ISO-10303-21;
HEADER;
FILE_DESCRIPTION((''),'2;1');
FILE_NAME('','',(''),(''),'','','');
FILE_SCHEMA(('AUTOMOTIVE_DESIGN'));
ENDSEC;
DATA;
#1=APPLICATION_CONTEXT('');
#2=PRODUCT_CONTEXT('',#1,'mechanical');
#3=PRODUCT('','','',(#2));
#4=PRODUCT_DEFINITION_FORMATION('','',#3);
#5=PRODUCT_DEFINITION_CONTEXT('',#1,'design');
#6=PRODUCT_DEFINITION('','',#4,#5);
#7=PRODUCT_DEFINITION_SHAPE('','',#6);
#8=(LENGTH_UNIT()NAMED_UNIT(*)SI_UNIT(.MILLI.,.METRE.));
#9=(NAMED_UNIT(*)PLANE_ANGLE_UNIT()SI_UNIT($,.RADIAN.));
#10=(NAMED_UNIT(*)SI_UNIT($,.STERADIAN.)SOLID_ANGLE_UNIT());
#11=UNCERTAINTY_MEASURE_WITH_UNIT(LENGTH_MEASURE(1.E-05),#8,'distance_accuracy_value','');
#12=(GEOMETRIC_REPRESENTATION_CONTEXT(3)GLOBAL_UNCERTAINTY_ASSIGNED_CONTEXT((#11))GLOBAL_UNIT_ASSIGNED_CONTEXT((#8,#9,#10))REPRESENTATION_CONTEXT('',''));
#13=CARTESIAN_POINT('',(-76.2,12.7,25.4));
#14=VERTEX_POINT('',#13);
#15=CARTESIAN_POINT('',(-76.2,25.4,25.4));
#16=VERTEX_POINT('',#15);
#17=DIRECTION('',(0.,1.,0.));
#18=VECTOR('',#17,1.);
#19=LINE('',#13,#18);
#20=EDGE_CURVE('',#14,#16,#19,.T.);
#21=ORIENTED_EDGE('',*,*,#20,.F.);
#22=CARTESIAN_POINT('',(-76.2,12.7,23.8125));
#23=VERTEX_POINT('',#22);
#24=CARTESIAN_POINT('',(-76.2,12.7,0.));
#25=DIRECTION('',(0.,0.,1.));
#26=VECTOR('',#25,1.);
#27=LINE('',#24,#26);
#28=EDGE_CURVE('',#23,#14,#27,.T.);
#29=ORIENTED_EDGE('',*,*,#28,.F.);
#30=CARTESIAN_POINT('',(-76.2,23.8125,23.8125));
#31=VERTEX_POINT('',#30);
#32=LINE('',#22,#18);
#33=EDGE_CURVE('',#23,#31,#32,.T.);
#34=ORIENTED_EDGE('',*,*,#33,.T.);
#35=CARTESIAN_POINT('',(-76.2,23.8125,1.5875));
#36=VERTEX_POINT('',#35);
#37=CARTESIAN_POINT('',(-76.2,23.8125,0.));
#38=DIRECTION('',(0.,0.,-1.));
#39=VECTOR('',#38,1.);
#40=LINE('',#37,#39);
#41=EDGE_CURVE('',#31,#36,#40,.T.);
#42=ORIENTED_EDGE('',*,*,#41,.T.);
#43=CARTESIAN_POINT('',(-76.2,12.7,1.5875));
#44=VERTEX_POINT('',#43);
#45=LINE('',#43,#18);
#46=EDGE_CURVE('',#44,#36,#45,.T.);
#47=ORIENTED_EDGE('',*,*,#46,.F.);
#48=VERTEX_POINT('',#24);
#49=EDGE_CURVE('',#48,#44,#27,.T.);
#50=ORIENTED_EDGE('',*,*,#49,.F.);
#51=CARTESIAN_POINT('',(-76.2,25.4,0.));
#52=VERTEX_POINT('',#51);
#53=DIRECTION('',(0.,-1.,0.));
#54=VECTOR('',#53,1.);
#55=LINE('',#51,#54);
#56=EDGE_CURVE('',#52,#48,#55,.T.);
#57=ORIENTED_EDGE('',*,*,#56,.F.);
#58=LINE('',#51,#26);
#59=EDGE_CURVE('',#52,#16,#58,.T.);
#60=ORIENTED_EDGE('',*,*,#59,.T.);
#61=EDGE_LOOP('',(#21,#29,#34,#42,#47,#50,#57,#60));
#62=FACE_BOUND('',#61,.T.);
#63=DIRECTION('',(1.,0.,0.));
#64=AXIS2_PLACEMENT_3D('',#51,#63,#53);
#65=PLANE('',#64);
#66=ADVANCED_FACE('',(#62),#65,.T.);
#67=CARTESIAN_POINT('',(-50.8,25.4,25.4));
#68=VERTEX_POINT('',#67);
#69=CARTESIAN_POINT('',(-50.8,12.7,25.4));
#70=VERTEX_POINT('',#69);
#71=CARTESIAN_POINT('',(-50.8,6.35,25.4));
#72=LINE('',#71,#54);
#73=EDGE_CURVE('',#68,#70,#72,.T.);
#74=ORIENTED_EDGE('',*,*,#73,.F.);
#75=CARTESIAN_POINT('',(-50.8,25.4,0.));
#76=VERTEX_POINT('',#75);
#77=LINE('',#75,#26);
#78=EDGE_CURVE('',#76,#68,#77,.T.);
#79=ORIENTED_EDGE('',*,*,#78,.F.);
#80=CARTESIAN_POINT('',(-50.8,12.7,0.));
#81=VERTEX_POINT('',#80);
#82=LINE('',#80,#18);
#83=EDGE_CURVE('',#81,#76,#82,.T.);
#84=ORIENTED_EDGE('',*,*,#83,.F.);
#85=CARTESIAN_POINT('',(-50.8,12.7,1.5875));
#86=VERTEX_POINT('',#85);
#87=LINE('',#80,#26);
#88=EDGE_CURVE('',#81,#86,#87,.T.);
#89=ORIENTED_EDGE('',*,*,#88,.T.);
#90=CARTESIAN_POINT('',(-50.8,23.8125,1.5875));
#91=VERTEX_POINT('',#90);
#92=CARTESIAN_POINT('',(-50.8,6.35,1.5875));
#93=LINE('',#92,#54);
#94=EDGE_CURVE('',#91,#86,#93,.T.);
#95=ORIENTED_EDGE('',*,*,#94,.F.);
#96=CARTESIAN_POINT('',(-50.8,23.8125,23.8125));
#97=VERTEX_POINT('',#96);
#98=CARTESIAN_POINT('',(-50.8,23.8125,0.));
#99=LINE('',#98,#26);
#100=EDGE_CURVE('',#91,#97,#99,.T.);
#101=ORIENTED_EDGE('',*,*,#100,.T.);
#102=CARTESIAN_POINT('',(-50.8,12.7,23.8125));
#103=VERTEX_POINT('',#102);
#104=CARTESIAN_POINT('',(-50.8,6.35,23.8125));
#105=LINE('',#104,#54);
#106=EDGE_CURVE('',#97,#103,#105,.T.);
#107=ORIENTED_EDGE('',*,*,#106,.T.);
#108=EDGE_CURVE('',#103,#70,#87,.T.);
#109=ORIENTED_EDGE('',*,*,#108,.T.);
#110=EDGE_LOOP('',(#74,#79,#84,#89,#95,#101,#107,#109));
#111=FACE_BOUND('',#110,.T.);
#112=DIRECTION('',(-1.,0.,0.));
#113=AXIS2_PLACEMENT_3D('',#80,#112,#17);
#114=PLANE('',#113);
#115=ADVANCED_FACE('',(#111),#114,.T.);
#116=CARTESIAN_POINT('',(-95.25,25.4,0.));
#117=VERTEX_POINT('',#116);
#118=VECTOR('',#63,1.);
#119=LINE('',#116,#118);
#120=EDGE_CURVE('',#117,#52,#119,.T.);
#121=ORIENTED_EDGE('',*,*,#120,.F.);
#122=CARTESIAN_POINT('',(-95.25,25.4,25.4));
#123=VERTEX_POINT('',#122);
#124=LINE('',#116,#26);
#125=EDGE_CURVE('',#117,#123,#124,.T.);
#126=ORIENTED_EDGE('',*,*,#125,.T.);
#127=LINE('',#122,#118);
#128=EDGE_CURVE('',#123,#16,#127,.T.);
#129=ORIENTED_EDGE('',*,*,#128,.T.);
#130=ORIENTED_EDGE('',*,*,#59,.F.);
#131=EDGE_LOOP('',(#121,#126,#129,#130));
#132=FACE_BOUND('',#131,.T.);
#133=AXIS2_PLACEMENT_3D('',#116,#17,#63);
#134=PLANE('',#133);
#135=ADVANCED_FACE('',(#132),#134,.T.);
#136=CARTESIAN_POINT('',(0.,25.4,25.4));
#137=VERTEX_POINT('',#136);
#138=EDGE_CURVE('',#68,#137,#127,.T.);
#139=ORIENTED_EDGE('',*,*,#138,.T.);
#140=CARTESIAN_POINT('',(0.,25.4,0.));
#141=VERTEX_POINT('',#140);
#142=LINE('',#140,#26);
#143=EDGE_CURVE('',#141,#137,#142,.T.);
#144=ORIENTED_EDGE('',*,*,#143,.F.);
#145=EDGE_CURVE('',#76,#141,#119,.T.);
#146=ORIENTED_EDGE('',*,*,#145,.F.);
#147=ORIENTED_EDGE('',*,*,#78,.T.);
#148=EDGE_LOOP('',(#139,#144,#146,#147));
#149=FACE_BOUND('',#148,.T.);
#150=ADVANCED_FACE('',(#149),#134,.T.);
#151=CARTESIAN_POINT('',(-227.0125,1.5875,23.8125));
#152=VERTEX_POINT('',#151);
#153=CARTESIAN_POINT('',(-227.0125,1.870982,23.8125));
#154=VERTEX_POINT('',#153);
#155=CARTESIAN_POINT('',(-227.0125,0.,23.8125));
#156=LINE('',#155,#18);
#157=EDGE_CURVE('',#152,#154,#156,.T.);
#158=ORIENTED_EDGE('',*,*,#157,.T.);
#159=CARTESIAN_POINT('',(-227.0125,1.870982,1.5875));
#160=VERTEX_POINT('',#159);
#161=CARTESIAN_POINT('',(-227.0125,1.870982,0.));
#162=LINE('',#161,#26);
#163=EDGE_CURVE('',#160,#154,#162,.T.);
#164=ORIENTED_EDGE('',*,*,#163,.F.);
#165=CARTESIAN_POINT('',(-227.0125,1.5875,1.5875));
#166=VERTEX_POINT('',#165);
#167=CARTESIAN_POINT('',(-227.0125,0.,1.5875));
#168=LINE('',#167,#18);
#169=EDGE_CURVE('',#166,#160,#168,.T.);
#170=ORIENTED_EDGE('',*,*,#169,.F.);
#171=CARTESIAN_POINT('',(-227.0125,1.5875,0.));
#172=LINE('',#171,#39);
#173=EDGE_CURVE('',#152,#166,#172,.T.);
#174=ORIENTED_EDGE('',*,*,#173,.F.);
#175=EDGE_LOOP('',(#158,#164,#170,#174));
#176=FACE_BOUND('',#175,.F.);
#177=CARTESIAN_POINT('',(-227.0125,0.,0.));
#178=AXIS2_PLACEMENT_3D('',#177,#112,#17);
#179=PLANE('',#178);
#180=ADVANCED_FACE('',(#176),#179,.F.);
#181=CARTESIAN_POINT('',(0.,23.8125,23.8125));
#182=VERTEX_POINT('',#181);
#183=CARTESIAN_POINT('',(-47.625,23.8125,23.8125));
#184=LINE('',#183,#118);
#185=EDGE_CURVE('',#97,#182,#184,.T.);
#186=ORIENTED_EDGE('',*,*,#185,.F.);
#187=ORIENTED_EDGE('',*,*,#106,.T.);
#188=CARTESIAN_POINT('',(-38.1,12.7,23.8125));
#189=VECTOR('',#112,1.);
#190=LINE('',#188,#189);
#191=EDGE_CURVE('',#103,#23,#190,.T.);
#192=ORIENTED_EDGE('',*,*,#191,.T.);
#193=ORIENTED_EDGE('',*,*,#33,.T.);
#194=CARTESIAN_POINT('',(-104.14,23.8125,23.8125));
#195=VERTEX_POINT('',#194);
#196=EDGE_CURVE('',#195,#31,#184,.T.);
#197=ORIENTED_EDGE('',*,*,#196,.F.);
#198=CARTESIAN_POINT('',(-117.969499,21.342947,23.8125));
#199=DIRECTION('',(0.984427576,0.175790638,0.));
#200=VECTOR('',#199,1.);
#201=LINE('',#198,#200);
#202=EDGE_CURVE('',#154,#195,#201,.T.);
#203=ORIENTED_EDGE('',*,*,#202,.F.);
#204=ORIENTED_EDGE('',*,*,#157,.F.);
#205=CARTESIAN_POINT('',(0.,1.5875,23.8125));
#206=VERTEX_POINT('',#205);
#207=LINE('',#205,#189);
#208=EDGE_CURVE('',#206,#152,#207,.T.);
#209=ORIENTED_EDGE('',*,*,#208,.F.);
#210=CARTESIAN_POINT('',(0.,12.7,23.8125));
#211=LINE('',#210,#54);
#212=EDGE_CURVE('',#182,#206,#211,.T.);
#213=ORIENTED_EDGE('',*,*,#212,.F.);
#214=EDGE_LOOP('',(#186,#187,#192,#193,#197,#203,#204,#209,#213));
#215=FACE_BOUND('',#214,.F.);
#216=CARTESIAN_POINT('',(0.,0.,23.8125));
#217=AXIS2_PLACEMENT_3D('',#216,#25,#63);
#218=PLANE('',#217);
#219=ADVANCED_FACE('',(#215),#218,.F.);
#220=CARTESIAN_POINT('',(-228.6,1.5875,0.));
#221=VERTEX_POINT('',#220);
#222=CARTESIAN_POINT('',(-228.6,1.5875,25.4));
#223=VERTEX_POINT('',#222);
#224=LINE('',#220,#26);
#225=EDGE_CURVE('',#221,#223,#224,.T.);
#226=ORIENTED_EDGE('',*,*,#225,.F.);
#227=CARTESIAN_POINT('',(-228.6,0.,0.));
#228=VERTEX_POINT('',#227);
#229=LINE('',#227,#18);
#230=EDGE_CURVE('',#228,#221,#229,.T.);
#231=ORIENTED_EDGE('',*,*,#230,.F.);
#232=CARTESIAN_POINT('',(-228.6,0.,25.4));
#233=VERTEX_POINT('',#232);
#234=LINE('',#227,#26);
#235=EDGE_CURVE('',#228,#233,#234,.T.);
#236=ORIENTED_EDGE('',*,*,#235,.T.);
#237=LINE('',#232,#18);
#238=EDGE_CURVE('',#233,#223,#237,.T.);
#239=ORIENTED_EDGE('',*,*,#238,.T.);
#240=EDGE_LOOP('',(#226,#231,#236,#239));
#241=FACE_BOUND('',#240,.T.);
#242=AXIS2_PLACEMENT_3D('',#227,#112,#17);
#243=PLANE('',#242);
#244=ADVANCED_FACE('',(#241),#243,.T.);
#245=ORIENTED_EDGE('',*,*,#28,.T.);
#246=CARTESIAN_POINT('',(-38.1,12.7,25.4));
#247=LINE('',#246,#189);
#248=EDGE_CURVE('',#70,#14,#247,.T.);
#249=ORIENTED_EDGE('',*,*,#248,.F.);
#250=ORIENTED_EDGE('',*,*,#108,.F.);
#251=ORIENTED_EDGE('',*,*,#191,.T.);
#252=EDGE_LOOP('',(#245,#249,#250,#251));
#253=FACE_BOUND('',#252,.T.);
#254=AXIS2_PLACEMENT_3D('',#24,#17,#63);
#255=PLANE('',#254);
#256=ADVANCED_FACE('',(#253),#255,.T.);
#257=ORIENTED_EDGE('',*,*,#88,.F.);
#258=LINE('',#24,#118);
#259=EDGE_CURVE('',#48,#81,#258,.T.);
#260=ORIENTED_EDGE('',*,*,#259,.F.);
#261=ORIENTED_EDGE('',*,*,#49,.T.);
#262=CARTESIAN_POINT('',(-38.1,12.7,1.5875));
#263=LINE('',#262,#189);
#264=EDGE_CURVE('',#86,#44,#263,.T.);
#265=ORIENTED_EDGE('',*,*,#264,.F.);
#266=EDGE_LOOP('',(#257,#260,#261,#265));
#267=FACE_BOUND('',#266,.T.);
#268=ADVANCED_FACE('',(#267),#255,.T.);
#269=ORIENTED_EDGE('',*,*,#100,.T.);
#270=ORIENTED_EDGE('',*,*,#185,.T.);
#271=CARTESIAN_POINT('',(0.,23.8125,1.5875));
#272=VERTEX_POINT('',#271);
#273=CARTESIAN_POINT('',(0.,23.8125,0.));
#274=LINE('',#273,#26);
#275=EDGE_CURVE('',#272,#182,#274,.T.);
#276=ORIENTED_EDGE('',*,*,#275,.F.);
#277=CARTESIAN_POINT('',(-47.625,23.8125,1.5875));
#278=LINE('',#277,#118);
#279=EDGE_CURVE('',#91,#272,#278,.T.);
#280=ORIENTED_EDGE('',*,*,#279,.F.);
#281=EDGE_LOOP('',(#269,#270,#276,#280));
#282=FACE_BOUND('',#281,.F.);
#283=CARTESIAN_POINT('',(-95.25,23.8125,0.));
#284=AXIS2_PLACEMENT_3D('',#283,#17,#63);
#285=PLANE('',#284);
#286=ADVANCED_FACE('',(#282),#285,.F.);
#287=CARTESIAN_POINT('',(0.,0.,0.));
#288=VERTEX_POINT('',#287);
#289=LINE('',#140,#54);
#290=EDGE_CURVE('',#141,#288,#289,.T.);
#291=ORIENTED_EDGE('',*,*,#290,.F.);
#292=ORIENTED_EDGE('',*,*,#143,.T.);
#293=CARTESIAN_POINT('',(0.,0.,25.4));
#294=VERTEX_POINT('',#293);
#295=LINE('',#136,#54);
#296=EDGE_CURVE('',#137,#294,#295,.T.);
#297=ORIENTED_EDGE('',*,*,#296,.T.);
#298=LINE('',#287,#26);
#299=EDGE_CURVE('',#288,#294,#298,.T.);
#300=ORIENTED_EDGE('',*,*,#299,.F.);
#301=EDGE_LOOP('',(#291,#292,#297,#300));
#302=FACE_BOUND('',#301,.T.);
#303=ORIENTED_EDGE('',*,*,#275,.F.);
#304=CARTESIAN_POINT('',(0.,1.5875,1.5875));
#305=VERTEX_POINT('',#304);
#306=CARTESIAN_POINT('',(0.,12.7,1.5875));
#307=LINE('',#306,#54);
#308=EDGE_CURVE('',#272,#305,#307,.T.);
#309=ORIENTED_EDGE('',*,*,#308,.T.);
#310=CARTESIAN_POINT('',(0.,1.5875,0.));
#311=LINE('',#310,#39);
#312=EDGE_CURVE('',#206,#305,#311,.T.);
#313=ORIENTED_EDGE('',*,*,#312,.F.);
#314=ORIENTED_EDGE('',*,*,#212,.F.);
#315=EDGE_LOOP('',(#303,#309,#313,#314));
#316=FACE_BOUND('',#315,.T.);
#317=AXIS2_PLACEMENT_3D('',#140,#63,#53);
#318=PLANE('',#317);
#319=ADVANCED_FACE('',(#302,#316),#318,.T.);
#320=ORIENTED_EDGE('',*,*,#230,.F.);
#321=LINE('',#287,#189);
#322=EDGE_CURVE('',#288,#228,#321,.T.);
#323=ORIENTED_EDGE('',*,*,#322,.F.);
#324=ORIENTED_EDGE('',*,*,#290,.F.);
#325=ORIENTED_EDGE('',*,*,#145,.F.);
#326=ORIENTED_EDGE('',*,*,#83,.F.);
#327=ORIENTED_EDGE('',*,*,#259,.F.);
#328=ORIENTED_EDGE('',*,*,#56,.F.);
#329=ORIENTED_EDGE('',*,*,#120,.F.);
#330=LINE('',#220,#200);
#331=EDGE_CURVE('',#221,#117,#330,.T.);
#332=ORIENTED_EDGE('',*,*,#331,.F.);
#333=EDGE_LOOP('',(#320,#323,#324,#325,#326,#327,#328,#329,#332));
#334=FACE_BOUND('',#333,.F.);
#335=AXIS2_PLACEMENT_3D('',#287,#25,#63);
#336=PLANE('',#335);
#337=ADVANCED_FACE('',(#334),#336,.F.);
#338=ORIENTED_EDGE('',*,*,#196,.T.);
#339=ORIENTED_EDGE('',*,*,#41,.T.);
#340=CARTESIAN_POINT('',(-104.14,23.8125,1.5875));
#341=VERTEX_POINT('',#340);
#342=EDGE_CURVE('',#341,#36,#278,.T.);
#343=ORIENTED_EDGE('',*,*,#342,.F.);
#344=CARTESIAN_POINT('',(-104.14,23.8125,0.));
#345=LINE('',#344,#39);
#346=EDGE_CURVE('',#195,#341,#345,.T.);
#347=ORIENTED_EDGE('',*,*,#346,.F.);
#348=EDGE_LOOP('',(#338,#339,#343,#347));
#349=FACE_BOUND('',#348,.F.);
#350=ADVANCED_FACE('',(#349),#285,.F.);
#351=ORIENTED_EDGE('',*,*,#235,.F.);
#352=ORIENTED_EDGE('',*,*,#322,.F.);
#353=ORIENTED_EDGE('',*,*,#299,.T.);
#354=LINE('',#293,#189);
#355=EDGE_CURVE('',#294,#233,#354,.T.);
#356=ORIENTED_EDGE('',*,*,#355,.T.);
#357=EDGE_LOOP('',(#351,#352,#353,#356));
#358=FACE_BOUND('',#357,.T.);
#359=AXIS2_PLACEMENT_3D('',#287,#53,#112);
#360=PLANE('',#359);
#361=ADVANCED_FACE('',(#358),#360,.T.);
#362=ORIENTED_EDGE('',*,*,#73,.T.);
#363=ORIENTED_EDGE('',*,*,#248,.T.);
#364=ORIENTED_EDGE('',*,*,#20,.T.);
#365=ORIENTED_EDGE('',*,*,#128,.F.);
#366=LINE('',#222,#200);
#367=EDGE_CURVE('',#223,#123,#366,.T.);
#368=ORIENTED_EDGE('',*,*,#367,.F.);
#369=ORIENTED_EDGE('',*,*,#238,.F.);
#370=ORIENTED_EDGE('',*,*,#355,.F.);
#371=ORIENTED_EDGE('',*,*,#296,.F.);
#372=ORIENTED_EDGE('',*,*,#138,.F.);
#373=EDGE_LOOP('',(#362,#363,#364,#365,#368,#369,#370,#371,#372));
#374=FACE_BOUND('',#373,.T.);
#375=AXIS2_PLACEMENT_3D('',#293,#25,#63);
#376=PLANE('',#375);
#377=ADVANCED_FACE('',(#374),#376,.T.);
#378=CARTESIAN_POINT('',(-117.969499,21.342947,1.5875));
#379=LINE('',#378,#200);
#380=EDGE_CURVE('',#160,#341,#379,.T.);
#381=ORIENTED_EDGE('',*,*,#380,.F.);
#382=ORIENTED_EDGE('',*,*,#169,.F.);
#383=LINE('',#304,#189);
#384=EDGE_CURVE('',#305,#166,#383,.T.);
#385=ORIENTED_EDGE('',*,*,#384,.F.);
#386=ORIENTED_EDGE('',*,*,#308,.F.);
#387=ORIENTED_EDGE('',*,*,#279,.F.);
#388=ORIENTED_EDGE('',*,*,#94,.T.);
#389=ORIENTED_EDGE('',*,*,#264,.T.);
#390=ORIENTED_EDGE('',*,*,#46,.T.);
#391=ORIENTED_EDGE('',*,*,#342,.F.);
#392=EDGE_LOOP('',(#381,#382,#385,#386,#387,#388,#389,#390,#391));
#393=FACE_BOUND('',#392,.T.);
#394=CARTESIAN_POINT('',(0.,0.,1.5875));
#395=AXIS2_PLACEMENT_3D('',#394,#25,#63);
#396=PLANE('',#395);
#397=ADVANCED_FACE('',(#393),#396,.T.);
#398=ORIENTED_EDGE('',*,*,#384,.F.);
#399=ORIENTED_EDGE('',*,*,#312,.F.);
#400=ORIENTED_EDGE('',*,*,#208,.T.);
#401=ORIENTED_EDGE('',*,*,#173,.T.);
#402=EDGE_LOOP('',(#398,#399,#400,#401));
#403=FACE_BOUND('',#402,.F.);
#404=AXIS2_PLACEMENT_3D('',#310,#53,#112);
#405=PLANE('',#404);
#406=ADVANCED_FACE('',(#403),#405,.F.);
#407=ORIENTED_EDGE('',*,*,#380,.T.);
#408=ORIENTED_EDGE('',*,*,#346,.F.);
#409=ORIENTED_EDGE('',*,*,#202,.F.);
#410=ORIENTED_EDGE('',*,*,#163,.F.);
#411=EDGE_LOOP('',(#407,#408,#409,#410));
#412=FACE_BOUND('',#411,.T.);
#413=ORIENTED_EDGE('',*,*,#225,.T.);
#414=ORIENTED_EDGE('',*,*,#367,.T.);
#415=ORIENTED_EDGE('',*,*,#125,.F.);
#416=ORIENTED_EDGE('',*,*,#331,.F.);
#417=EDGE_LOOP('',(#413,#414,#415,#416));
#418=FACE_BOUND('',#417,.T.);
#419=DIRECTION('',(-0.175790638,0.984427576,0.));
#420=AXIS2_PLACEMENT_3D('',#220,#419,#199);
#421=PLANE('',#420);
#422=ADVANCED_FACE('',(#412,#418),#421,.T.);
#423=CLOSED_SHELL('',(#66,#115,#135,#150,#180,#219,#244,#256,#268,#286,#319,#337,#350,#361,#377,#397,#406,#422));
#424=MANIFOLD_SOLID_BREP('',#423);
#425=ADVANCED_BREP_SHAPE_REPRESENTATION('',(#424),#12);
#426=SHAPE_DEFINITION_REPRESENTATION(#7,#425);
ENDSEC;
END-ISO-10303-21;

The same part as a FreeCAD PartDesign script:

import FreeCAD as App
import Part
import Sketcher
from FreeCAD import Vector
Q = App.Units.Quantity


def faces_at(feature, points):
    """Names of the faces that lie closest to the given points."""
    faces = feature.Shape.Faces
    near = lambda p: min(range(len(faces)), key=lambda i: faces[i].distToShape(Part.Vertex(*p))[0])
    return sorted({f"Face{near(p) + 1}" for p in points})


def add_polygon(sketch, points):
    """Adds a closed chain of lines whose ends are joined by coincident constraints."""
    first, n = sketch.GeometryCount, len(points)
    for a, b in zip(points, points[1:] + points[:1]):
        sketch.addGeometry(Part.LineSegment(App.Vector(*a, 0), App.Vector(*b, 0)), False)
    for i in range(n):
        sketch.addConstraint(Sketcher.Constraint("Coincident", first + i, 2, first + (i + 1) % n, 1))

doc = App.newDocument("Part")
body = doc.addObject("PartDesign::Body", "Body")

# Sketch on XY plane
sketch1 = doc.addObject("Sketcher::SketchObject", "Sketch")
body.addObject(sketch1)
sketch1.AttachmentSupport = (doc.XY_Plane, [""])
sketch1.MapMode = "FlatFace"
add_polygon(sketch1, [(-228.6, 0), (0, 0), (0, 25.4), (-95.2, 25.4), (-228.6, 1.6)])  # lines 0-4
sketch1.addConstraint([
    Sketcher.Constraint("Horizontal", 0),
    Sketcher.Constraint("Vertical", 1),
    Sketcher.Constraint("Horizontal", 2),
    Sketcher.Constraint("Vertical", 4),
    Sketcher.Constraint("Coincident", 0, 2, -1, 1),
    Sketcher.Constraint("DistanceX", 0, 1, 0, 2, Q("9 in")),
    Sketcher.Constraint("DistanceY", 1, 1, 1, 2, Q("1 in")),
    Sketcher.Constraint("DistanceX", 2, 2, 2, 1, Q("3.75 in")),
    Sketcher.Constraint("DistanceY", 4, 2, 4, 1, Q("0.0625 in")),
])
pad1 = doc.addObject("PartDesign::Pad", "Pad")
body.addObject(pad1)
pad1.Profile = sketch1
pad1.Length = Q("1 in")
doc.recompute()

thickness = doc.addObject("PartDesign::Thickness", "Thickness")
body.addObject(thickness)
thickness.Base = (pad1, faces_at(pad1, [(-184.15, 9.525, 8.467), (0, 16.933, 8.467)]))
thickness.Value = Q("0.0625 in")
thickness.Reversed = True
thickness.Join = "Intersection"

# Sketch on XY plane
sketch2 = doc.addObject("Sketcher::SketchObject", "Sketch001")
body.addObject(sketch2)
sketch2.AttachmentSupport = (doc.XY_Plane, [""])
sketch2.MapMode = "FlatFace"
add_polygon(sketch2, [(-76, 13), (-76, 25), (-51, 25), (-51, 13)])  # lines 0-3
sketch2.addConstraint([
    Sketcher.Constraint("Vertical", 0),
    Sketcher.Constraint("Horizontal", 1),
    Sketcher.Constraint("Vertical", 2),
    Sketcher.Constraint("Horizontal", 3),
    Sketcher.Constraint("DistanceX", 1, 1, 1, 2, Q("1 in")),
    Sketcher.Constraint("DistanceY", 0, 1, 0, 2, Q("0.5 in")),
    Sketcher.Constraint("DistanceY", -1, 1, 0, 2, Q("1 in")),
    Sketcher.Constraint("DistanceX", 1, 2, -1, 1, Q("2 in")),
])
pocket1 = doc.addObject("PartDesign::Pocket", "Pocket")
body.addObject(pocket1)
pocket1.Profile = sketch2
pocket1.Type = "ThroughAll"
pocket1.Reversed = True

doc.recompute()
